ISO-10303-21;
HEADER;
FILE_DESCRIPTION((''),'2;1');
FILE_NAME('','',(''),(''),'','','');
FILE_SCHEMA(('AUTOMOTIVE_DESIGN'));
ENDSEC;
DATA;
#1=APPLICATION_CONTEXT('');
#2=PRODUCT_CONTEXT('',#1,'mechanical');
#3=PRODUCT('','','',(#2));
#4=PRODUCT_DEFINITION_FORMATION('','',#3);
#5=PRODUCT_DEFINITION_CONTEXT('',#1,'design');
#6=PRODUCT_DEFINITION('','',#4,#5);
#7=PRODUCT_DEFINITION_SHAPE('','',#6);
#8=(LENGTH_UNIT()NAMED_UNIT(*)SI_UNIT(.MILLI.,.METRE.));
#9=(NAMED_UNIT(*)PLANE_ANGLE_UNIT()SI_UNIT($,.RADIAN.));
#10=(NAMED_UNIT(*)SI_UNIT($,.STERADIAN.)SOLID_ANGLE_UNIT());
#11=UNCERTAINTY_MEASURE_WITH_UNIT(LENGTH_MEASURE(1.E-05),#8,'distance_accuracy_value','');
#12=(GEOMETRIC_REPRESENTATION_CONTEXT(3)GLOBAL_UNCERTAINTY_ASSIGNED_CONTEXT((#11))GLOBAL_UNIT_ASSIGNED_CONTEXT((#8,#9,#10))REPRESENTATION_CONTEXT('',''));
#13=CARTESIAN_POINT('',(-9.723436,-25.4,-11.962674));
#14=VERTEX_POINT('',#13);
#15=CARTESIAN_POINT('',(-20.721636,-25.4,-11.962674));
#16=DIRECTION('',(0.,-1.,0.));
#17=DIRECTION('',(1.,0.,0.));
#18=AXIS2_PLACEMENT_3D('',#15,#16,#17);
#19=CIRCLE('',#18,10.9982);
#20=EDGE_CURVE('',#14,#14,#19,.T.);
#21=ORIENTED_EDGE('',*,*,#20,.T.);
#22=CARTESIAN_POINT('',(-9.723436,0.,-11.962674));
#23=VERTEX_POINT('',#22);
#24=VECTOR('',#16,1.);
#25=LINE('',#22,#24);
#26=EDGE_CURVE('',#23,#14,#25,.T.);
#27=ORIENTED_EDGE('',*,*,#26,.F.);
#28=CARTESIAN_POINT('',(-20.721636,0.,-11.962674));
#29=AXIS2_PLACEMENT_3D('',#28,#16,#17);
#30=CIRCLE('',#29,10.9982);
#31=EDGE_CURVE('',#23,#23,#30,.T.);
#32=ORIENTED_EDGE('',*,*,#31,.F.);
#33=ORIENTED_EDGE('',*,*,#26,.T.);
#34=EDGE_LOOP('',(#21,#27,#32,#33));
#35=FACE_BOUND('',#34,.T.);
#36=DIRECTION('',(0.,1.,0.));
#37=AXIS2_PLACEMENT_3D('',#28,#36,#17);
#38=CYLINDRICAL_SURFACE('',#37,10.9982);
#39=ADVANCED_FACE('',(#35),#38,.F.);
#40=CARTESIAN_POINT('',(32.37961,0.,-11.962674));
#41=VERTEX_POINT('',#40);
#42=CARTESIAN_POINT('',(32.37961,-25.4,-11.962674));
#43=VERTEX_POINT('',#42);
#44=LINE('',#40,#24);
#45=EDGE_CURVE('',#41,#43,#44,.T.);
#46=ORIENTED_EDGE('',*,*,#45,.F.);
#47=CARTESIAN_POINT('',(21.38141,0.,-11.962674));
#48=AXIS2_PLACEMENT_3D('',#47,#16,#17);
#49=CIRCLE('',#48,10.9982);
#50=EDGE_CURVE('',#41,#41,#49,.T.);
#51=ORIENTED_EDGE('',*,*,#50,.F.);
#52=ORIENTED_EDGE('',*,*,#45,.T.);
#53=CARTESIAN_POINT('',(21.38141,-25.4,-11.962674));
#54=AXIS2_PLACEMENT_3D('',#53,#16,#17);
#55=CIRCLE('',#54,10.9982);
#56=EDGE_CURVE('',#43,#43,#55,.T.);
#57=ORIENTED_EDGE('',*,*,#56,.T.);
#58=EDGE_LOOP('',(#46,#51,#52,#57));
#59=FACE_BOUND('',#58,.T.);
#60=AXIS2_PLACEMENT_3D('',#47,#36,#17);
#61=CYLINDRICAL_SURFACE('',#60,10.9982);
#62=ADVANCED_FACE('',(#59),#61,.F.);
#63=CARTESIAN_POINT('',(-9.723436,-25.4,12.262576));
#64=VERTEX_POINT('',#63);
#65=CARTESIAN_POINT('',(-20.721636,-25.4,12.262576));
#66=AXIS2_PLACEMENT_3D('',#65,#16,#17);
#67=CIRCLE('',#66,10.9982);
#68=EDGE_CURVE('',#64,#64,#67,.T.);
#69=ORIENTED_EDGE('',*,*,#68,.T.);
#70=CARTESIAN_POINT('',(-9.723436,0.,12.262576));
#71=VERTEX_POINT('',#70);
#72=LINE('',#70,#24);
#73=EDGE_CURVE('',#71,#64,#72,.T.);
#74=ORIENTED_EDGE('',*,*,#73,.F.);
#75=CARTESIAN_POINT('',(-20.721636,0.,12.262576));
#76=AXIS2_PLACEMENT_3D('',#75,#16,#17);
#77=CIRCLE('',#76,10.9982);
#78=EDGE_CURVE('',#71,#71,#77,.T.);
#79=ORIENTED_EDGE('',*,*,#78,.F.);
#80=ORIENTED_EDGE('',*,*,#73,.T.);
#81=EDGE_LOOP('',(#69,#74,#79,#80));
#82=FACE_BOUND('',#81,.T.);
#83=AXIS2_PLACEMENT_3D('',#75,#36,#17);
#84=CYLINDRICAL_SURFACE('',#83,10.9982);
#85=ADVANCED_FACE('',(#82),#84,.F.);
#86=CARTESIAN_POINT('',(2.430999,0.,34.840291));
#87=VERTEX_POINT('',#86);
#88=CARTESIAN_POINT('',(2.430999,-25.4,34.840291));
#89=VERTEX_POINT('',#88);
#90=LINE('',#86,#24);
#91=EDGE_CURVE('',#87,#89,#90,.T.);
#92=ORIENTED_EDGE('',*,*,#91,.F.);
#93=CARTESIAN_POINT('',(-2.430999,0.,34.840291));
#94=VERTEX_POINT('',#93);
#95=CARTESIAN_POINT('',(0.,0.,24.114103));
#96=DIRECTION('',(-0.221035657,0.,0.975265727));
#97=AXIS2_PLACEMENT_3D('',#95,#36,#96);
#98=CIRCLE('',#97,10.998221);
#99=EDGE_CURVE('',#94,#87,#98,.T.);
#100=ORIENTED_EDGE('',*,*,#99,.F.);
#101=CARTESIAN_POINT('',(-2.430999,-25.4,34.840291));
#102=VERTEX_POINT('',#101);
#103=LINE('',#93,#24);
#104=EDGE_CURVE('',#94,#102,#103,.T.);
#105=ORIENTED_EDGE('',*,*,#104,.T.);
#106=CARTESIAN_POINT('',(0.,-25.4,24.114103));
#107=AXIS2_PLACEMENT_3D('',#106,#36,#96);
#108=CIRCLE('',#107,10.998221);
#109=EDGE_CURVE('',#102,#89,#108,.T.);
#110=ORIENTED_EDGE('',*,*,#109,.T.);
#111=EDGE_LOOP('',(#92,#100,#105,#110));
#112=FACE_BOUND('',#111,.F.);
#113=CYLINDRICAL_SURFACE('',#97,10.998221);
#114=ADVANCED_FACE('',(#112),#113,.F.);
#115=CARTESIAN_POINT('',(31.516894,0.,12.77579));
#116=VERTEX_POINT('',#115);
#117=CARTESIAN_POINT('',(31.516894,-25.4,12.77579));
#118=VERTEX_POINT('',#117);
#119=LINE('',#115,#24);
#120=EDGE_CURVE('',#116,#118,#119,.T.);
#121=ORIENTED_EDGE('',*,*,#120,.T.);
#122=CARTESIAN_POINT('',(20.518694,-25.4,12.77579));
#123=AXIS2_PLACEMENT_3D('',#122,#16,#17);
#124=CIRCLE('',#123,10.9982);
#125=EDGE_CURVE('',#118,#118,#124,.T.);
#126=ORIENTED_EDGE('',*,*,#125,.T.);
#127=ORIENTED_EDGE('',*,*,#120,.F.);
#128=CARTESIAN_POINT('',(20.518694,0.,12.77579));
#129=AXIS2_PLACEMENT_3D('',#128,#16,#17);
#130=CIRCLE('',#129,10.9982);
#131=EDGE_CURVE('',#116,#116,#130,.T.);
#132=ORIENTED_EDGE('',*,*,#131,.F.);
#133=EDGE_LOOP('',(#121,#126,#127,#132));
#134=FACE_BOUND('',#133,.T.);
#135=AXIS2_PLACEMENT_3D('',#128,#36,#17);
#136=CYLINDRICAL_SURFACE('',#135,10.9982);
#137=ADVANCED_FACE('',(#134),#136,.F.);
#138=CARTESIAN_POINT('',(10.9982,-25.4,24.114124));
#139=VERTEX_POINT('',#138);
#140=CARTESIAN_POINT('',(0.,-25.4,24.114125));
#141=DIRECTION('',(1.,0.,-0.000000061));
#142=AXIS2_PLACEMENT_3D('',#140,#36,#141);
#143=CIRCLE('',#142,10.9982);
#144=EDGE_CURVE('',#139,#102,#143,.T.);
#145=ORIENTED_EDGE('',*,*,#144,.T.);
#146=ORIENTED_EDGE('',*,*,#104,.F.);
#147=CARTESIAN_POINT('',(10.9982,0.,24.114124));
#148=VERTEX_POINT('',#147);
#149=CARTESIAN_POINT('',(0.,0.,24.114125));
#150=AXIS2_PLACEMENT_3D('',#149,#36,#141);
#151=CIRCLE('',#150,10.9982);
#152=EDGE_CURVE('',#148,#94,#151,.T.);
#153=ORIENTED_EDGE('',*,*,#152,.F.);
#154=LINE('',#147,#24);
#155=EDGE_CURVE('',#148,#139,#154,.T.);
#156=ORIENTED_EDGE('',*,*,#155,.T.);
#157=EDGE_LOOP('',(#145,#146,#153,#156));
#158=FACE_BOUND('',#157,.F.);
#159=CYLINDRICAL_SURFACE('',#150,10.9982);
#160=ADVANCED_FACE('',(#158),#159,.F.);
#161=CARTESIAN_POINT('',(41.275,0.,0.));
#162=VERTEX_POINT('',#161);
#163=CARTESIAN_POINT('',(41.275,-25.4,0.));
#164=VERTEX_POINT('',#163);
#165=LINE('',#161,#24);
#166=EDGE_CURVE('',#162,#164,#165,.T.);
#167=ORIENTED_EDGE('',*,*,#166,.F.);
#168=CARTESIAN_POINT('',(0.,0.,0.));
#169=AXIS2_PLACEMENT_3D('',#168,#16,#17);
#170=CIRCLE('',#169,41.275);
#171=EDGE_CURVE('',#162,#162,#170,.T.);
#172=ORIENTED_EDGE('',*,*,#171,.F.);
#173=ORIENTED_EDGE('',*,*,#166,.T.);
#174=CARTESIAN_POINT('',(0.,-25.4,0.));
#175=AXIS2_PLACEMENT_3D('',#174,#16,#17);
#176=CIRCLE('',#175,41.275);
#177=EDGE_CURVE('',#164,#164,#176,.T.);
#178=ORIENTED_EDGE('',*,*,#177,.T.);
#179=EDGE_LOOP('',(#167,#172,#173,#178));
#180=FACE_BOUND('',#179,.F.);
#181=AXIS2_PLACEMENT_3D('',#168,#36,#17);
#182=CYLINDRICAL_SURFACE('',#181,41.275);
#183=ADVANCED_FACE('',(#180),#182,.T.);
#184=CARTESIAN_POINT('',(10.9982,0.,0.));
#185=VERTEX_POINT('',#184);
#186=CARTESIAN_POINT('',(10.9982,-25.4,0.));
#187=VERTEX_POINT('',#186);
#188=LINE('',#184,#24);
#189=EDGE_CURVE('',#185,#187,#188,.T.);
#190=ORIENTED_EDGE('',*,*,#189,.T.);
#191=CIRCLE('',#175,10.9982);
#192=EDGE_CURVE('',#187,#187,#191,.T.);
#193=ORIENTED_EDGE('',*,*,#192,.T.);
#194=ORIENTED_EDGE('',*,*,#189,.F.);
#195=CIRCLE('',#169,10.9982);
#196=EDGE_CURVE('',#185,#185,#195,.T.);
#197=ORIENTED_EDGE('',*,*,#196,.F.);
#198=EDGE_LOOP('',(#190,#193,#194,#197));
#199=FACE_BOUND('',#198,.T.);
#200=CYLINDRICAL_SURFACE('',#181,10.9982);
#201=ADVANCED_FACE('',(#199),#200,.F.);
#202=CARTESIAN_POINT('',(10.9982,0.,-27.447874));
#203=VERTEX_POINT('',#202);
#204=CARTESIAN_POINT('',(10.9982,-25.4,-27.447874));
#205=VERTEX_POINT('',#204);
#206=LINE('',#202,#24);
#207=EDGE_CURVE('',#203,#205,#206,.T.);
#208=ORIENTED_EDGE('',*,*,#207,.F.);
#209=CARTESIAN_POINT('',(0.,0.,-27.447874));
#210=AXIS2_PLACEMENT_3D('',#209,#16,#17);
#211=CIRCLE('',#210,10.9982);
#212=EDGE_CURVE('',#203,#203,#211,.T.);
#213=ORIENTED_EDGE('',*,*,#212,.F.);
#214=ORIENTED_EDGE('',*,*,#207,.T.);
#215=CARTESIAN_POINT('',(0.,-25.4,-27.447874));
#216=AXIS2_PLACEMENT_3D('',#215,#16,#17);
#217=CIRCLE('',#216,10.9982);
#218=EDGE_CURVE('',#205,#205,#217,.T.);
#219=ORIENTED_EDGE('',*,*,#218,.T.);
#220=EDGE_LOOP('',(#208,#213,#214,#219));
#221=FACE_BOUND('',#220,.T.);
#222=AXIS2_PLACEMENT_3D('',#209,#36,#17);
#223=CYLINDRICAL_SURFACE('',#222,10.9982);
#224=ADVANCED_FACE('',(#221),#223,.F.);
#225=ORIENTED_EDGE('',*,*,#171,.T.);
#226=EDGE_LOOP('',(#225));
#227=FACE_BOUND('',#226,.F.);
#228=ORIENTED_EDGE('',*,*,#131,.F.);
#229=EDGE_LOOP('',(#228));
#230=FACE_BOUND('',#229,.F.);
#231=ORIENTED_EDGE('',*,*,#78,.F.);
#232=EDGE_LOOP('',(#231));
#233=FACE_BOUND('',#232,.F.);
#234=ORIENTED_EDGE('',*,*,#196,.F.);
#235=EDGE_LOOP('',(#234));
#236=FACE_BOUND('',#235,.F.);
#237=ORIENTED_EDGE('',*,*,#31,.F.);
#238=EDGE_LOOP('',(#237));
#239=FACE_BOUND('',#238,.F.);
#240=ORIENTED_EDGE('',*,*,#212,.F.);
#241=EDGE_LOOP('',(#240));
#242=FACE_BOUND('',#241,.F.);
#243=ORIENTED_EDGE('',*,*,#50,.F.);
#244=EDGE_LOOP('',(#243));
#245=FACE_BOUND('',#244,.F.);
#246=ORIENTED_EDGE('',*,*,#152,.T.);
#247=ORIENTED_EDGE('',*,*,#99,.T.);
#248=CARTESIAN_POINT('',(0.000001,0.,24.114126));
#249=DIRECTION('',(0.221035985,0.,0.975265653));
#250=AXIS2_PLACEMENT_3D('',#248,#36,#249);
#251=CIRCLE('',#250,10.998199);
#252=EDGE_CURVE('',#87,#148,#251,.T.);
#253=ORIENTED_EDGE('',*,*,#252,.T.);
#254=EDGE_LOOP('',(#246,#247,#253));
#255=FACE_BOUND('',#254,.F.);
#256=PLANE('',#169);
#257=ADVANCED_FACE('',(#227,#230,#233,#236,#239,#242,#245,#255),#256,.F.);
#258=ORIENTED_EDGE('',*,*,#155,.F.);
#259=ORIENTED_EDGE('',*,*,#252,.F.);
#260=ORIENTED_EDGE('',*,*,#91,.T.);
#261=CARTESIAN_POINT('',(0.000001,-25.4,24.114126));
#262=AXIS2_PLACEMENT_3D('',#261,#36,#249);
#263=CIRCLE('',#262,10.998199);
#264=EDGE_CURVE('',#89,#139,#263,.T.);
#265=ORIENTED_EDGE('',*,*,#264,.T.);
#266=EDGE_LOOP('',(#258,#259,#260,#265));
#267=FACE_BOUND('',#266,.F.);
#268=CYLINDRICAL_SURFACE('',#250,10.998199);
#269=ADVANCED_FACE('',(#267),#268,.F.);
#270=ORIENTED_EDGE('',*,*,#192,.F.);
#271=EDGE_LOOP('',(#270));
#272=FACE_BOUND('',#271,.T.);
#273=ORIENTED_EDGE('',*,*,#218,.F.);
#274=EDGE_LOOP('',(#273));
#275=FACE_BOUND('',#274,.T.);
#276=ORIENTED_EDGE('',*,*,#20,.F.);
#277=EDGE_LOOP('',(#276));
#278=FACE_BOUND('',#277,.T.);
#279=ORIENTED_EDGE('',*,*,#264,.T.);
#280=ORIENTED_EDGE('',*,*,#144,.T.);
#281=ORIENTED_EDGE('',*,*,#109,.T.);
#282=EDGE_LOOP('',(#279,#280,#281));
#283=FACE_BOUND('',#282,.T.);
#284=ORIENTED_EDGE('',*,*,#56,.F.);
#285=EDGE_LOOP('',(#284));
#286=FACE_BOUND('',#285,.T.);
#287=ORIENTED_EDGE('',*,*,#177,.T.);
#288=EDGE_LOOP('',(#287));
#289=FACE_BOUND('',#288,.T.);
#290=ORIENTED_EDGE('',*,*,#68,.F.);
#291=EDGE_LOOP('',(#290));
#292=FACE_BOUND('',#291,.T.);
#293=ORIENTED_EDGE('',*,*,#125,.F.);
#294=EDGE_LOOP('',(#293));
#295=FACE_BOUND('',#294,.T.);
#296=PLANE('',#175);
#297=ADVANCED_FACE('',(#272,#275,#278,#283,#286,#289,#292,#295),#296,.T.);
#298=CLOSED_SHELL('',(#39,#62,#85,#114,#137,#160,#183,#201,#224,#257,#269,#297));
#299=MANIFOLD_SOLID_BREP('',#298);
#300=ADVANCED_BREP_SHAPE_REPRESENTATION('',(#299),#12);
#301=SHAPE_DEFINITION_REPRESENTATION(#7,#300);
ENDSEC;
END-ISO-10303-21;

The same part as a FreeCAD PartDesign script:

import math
import FreeCAD as App
import Part
import Sketcher
from FreeCAD import Vector
Q = App.Units.Quantity

doc = App.newDocument("Part")
body = doc.addObject("PartDesign::Body", "Body")

sketch1 = body.newObject("Sketcher::SketchObject", "Sketch")
sketch1.AttachmentSupport = (doc.getObject("XZ_Plane"), [""])
sketch1.MapMode = "FlatFace"
sketch1.addGeometry([
    Part.Circle(Vector(0, 0, 0), Vector(0, 0, 1), 41.275),
    Part.Circle(Vector(0, -27.447874, 0), Vector(0, 0, 1), 10.9982),
    Part.Circle(Vector(-20.721636, -11.962674, 0), Vector(0, 0, 1), 10.9982),
    Part.Circle(Vector(21.38141, -11.962674, 0), Vector(0, 0, 1), 10.9982),
    Part.Circle(Vector(-20.721636, 12.262576, 0), Vector(0, 0, 1), 10.9982),
    Part.Circle(Vector(0, 0, 0), Vector(0, 0, 1), 10.9982),
    Part.ArcOfCircle(Part.Circle(Vector(0, 24.114125, 0), Vector(0, 0, 1), 10.9982), math.radians(102.769895), math.radians(359.999997)),
    Part.ArcOfCircle(Part.Circle(Vector(0, 24.114103, 0), Vector(0, 0, 1), 10.998221), math.radians(77.230131), math.radians(102.769869)),
    Part.ArcOfCircle(Part.Circle(Vector(0.000001, 24.114126, 0), Vector(0, 0, 1), 10.998199), math.radians(-0.000008), math.radians(77.230111)),
    Part.Circle(Vector(20.518694, 12.77579, 0), Vector(0, 0, 1), 10.9982),
], False)
sketch1.addConstraint([
    Sketcher.Constraint("Coincident", 6, 1, 7, 2),
    Sketcher.Constraint("Coincident", 7, 1, 8, 2),
    Sketcher.Constraint("Coincident", 8, 1, 6, 2),
    Sketcher.Constraint("Coincident", 0, 3, -1, 1),
    Sketcher.Constraint("Coincident", 5, 3, -1, 1),
    Sketcher.Constraint("Coincident", 8, 3, 6, 3),
    Sketcher.Constraint("PointOnObject", 1, 3, -2),
    Sketcher.Constraint("PointOnObject", 6, 3, -2),
    Sketcher.Constraint("Diameter", 0, Q("3.25 in")),
    Sketcher.Constraint("Diameter", 1, Q("0.866 in")),
    Sketcher.Constraint("Diameter", 2, Q("0.866 in")),
    Sketcher.Constraint("Diameter", 3, Q("0.866 in")),
    Sketcher.Constraint("Diameter", 4, Q("0.866 in")),
    Sketcher.Constraint("Diameter", 5, Q("0.866 in")),
    Sketcher.Constraint("Diameter", 9, Q("0.866 in")),
    Sketcher.Constraint("Radius", 6, Q("0.433 in")),
    Sketcher.Constraint("Radius", 7, 10.998221),
    Sketcher.Constraint("DistanceX", 6, 1, -1, 1, 2.430999),
    Sketcher.Constraint("DistanceX", -1, 1, 7, 1, 2.430999),
    Sketcher.Constraint("DistanceY", 1, 3, 2, 3, 15.4852),
    Sketcher.Constraint("DistanceY", 1, 3, 3, 3, 15.4852),
    Sketcher.Constraint("DistanceY", 2, 3, 6, 3, 36.076799),
    Sketcher.Constraint("DistanceY", 9, 3, 6, 1, 22.064501),
    Sketcher.Constraint("DistanceX", -1, 1, 3, 3, 21.38141),
    Sketcher.Constraint("DistanceY", -1, 1, 9, 3, 12.77579),
    Sketcher.Constraint("DistanceY", 2, 3, 4, 3, 24.22525),
    Sketcher.Constraint("DistanceX", 2, 3, -1, 1, 20.721636),
    Sketcher.Constraint("DistanceX", 4, 3, -1, 1, 20.721636),
    Sketcher.Constraint("DistanceX", -1, 1, 9, 3, 20.518694),
    Sketcher.Constraint("DistanceY", -1, 1, 8, 1, 24.114124),
])
pad1 = body.newObject("PartDesign::Pad", "Pad")
pad1.Profile = sketch1
pad1.Length = Q("1 in")

doc.recompute()
